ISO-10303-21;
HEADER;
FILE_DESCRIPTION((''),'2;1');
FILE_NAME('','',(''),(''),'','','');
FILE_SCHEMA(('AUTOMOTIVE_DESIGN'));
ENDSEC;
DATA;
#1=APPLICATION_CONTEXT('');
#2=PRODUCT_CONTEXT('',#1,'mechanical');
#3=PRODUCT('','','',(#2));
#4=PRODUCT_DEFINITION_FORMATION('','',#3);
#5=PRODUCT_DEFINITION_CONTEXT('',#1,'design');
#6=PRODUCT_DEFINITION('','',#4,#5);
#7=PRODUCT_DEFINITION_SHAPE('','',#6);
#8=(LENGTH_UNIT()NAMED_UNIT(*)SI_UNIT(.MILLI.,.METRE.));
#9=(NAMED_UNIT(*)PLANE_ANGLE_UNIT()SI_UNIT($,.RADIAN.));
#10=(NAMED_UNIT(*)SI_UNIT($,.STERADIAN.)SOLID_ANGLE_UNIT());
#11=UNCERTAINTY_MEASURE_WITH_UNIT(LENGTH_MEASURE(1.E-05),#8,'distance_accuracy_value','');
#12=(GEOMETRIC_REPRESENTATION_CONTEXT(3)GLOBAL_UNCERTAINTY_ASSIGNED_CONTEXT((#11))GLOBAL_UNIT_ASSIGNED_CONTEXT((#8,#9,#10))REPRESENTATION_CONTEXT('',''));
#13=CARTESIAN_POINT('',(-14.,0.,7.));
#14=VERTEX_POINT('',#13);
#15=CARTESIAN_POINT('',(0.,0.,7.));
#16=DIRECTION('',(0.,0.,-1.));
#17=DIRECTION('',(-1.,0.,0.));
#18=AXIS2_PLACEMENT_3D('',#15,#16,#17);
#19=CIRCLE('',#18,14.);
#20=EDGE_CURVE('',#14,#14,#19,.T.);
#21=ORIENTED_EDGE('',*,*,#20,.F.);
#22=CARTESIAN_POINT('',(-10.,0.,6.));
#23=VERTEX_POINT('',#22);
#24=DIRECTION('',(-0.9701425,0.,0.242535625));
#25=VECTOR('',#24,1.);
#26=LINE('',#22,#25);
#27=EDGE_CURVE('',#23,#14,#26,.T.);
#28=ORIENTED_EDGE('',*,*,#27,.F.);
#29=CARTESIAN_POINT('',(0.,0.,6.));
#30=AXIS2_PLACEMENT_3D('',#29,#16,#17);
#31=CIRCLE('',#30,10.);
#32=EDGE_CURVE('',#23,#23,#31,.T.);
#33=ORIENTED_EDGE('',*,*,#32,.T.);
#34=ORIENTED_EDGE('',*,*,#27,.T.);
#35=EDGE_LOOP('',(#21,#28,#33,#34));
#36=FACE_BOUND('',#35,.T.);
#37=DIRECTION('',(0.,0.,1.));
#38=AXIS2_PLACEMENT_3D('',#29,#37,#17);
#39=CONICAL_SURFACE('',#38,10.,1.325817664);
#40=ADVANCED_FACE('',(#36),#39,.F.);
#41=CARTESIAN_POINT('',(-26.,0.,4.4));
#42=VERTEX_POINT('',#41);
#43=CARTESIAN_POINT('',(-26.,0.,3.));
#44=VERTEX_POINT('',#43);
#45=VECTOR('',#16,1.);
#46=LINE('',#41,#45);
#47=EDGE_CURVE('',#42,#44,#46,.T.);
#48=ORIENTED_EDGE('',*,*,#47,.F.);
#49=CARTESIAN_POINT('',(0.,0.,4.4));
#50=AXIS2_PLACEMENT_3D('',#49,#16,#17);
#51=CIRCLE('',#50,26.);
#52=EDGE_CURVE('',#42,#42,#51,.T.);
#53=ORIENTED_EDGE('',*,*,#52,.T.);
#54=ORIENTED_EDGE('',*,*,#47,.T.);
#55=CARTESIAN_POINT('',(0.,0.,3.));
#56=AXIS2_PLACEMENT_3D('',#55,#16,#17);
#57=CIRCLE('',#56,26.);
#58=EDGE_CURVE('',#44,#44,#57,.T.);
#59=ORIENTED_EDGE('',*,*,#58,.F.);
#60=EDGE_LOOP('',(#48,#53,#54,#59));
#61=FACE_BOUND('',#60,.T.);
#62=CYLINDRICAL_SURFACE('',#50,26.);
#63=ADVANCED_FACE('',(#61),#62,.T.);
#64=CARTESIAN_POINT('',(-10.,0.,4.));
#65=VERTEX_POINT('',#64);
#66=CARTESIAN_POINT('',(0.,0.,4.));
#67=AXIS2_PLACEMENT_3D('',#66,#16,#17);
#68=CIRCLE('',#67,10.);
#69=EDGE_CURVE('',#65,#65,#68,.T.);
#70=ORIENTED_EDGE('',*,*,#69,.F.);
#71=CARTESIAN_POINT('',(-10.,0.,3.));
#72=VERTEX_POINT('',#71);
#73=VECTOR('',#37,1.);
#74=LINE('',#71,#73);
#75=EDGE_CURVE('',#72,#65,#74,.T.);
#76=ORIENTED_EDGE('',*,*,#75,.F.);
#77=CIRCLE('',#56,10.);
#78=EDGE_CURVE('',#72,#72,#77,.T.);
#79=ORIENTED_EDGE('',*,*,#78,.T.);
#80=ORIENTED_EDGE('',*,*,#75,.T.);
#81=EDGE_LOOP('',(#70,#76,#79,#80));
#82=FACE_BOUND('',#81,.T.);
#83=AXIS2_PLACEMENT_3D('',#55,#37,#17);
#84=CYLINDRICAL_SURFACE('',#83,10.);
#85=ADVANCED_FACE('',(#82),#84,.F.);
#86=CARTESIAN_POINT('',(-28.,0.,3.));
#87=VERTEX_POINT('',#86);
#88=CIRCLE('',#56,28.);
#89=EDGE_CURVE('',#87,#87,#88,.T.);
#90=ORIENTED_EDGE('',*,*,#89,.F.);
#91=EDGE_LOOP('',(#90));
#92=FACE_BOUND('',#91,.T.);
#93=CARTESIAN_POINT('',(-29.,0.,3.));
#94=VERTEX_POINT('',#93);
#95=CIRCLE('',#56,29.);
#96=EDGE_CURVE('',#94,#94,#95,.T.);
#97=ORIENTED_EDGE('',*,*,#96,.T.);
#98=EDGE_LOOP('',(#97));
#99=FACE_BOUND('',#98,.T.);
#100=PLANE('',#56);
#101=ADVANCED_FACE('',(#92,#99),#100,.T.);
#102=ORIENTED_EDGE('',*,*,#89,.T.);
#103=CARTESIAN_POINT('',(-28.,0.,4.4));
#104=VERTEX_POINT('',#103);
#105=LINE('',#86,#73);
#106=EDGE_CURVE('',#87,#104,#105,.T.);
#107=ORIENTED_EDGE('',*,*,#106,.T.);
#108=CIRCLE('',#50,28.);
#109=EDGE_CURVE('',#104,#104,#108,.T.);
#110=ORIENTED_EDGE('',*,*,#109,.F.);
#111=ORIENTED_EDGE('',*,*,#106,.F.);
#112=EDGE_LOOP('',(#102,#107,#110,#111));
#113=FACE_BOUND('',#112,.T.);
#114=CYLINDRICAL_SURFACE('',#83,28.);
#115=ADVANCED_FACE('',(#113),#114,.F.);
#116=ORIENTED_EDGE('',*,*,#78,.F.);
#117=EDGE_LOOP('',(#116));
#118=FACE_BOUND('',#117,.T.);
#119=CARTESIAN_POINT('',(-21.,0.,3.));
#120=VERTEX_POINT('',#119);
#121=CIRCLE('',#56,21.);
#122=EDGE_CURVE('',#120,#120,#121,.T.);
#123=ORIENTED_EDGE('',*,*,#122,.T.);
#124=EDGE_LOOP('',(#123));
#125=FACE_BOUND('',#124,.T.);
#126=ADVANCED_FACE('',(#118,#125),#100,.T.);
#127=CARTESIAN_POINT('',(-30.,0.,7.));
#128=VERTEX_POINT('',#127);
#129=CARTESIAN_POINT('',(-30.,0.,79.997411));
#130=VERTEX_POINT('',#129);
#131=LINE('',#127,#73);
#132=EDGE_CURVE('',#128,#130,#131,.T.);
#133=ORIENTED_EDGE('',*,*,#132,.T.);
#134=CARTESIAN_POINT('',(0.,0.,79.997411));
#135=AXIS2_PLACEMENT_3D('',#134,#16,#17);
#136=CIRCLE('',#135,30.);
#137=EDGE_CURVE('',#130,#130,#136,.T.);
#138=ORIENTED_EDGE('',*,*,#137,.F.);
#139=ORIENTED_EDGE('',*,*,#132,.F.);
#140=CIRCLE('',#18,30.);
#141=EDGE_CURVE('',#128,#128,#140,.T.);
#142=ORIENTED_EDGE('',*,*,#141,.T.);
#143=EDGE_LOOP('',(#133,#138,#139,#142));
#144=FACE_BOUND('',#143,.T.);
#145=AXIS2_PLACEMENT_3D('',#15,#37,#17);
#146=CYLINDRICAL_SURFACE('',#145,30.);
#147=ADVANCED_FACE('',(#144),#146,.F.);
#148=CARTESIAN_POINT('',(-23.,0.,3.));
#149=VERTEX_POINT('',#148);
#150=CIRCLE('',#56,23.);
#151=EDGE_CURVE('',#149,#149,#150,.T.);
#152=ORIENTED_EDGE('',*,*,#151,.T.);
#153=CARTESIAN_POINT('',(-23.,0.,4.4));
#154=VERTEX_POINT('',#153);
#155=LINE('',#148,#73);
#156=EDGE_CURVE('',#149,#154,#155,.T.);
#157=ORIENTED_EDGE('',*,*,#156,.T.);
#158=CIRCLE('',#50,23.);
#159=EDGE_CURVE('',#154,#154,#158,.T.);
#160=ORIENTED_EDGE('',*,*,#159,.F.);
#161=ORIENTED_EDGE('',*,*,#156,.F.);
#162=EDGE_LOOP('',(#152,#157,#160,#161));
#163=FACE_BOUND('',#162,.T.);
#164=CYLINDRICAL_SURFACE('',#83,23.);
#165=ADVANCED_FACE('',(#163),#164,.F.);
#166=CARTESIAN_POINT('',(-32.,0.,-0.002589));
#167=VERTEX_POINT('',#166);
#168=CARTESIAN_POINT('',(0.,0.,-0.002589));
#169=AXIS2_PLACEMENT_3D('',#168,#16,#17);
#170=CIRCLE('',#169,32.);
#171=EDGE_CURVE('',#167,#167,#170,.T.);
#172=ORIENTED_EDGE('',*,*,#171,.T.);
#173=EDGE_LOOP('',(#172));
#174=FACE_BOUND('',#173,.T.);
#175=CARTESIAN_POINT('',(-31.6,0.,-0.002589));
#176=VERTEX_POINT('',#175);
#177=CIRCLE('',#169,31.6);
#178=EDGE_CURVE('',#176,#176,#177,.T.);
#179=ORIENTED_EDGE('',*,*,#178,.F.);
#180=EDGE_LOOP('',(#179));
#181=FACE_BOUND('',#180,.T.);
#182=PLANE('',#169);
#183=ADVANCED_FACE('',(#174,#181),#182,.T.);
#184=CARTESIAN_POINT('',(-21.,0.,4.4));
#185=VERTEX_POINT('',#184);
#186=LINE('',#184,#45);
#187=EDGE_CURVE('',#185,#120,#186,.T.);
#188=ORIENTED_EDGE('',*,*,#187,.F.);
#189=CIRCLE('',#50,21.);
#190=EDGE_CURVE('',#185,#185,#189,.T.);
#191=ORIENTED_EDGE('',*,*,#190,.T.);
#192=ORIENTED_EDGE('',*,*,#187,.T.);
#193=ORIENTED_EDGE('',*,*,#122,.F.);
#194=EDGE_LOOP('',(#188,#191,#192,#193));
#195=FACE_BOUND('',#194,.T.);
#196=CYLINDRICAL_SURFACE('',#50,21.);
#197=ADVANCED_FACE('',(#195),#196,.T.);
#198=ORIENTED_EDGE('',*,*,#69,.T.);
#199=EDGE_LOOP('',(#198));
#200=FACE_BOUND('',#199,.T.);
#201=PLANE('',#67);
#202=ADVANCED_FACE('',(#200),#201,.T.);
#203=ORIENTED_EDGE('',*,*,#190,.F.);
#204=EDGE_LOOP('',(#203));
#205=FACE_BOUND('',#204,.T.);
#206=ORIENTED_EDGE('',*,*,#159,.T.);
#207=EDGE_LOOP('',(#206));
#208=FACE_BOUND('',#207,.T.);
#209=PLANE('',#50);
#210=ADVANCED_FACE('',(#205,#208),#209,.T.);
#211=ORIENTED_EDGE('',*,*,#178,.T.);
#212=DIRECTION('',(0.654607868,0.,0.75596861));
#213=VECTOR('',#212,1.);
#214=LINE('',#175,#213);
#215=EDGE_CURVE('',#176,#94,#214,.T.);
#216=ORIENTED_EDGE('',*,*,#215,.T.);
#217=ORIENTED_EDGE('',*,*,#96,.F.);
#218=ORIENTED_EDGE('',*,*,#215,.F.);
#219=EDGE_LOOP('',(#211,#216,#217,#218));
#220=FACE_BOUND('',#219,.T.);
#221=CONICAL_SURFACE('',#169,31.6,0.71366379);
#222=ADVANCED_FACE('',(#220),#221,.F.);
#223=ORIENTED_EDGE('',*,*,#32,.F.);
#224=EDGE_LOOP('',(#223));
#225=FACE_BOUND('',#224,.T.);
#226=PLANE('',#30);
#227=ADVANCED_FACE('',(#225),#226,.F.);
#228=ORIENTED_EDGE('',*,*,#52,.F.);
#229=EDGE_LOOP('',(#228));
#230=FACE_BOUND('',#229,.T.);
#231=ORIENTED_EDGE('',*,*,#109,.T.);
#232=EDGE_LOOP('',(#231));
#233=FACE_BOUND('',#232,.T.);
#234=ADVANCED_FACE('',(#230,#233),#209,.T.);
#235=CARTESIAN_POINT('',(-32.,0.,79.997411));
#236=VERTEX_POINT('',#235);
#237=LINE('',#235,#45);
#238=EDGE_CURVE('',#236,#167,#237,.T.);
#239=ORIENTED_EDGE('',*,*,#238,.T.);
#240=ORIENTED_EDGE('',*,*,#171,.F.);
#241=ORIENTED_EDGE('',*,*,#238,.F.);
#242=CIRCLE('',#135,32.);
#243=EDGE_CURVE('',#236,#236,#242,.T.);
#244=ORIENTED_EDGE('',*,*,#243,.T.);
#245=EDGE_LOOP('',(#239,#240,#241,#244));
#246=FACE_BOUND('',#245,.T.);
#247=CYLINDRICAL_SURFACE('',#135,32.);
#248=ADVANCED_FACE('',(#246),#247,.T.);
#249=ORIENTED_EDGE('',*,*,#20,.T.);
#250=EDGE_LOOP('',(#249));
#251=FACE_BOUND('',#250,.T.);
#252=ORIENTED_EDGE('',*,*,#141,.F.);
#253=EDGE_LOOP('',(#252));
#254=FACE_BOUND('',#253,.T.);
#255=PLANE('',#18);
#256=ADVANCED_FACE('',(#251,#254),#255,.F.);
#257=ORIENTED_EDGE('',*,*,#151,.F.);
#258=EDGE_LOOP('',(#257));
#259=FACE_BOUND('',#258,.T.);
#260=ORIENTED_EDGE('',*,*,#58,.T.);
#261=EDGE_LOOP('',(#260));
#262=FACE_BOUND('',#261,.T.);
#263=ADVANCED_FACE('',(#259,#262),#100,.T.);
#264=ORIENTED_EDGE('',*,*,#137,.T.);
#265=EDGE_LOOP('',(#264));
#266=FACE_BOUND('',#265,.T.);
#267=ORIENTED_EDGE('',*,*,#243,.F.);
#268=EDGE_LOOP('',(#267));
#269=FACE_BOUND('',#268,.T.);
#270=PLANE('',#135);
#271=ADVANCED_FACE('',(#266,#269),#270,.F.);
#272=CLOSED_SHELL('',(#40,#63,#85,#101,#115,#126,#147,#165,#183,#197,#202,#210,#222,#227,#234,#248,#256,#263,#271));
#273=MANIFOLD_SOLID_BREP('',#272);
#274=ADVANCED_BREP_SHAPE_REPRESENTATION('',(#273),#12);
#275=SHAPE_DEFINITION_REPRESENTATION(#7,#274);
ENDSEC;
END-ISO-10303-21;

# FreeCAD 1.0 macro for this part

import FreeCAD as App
import Part
import Sketcher

V = App.Vector
Q = App.Units.Quantity

doc = App.newDocument("Part")
body = doc.addObject("PartDesign::Body", "Body")

# Sketch on XZ plane
sketch1 = body.newObject("Sketcher::SketchObject", "Sketch")
sketch1.AttachmentSupport = (doc.getObject("XZ_Plane"), [""])
sketch1.MapMode = "FlatFace"
sketch1.addGeometry(Part.LineSegment(V(-10, 4, 0), V(0, 4, 0)), False)
sketch1.addGeometry(Part.LineSegment(V(0, 4, 0), V(0, 6, 0)), False)
sketch1.addGeometry(Part.LineSegment(V(0, 6, 0), V(-10, 6, 0)), False)
sketch1.addGeometry(Part.LineSegment(V(-10, 6, 0), V(-14, 7, 0)), False)
sketch1.addGeometry(Part.LineSegment(V(-14, 7, 0), V(-30, 7, 0)), False)
sketch1.addGeometry(Part.LineSegment(V(-30, 7, 0), V(-30, 80, 0)), False)
sketch1.addGeometry(Part.LineSegment(V(-30, 80, 0), V(-32, 80, 0)), False)
sketch1.addGeometry(Part.LineSegment(V(-32, 80, 0), V(-32, 0, 0)), False)
sketch1.addGeometry(Part.LineSegment(V(-32, 0, 0), V(-31.6, 0, 0)), False)
sketch1.addGeometry(Part.LineSegment(V(-31.6, 0, 0), V(-29, 3, 0)), False)
sketch1.addGeometry(Part.LineSegment(V(-29, 3, 0), V(-28, 3, 0)), False)
sketch1.addGeometry(Part.LineSegment(V(-28, 3, 0), V(-28, 4.4, 0)), False)
sketch1.addGeometry(Part.LineSegment(V(-28, 4.4, 0), V(-26, 4.4, 0)), False)
sketch1.addGeometry(Part.LineSegment(V(-26, 4.4, 0), V(-26, 3, 0)), False)
sketch1.addGeometry(Part.LineSegment(V(-26, 3, 0), V(-23, 3, 0)), False)
sketch1.addGeometry(Part.LineSegment(V(-23, 3, 0), V(-23, 4.4, 0)), False)
sketch1.addGeometry(Part.LineSegment(V(-23, 4.4, 0), V(-21, 4.4, 0)), False)
sketch1.addGeometry(Part.LineSegment(V(-21, 4.4, 0), V(-21, 3, 0)), False)
sketch1.addGeometry(Part.LineSegment(V(-21, 3, 0), V(-10, 3, 0)), False)
sketch1.addGeometry(Part.LineSegment(V(-10, 3, 0), V(-10, 4, 0)), False)
sketch1.addConstraint(Sketcher.Constraint("Coincident", 0, 2, 1, 1))
sketch1.addConstraint(Sketcher.Constraint("Coincident", 1, 2, 2, 1))
sketch1.addConstraint(Sketcher.Constraint("Coincident", 2, 2, 3, 1))
sketch1.addConstraint(Sketcher.Constraint("Coincident", 3, 2, 4, 1))
sketch1.addConstraint(Sketcher.Constraint("Coincident", 4, 2, 5, 1))
sketch1.addConstraint(Sketcher.Constraint("Coincident", 5, 2, 6, 1))
sketch1.addConstraint(Sketcher.Constraint("Coincident", 6, 2, 7, 1))
sketch1.addConstraint(Sketcher.Constraint("Coincident", 7, 2, 8, 1))
sketch1.addConstraint(Sketcher.Constraint("Coincident", 8, 2, 9, 1))
sketch1.addConstraint(Sketcher.Constraint("Coincident", 9, 2, 10, 1))
sketch1.addConstraint(Sketcher.Constraint("Coincident", 10, 2, 11, 1))
sketch1.addConstraint(Sketcher.Constraint("Coincident", 11, 2, 12, 1))
sketch1.addConstraint(Sketcher.Constraint("Coincident", 12, 2, 13, 1))
sketch1.addConstraint(Sketcher.Constraint("Coincident", 13, 2, 14, 1))
sketch1.addConstraint(Sketcher.Constraint("Coincident", 14, 2, 15, 1))
sketch1.addConstraint(Sketcher.Constraint("Coincident", 15, 2, 16, 1))
sketch1.addConstraint(Sketcher.Constraint("Coincident", 16, 2, 17, 1))
sketch1.addConstraint(Sketcher.Constraint("Coincident", 17, 2, 18, 1))
sketch1.addConstraint(Sketcher.Constraint("Coincident", 18, 2, 19, 1))
sketch1.addConstraint(Sketcher.Constraint("Coincident", 19, 2, 0, 1))
sketch1.addConstraint(Sketcher.Constraint("Horizontal", 0))
sketch1.addConstraint(Sketcher.Constraint("Vertical", 1))
sketch1.addConstraint(Sketcher.Constraint("Horizontal", 2))
sketch1.addConstraint(Sketcher.Constraint("Horizontal", 4))
sketch1.addConstraint(Sketcher.Constraint("Vertical", 5))
sketch1.addConstraint(Sketcher.Constraint("Horizontal", 6))
sketch1.addConstraint(Sketcher.Constraint("Vertical", 7))
sketch1.addConstraint(Sketcher.Constraint("Horizontal", 8))
sketch1.addConstraint(Sketcher.Constraint("Horizontal", 10))
sketch1.addConstraint(Sketcher.Constraint("Vertical", 11))
sketch1.addConstraint(Sketcher.Constraint("Horizontal", 12))
sketch1.addConstraint(Sketcher.Constraint("Vertical", 13))
sketch1.addConstraint(Sketcher.Constraint("Horizontal", 14))
sketch1.addConstraint(Sketcher.Constraint("Vertical", 15))
sketch1.addConstraint(Sketcher.Constraint("Horizontal", 16))
sketch1.addConstraint(Sketcher.Constraint("Vertical", 17))
sketch1.addConstraint(Sketcher.Constraint("Horizontal", 18))
sketch1.addConstraint(Sketcher.Constraint("Vertical", 19))
sketch1.addConstraint(Sketcher.Constraint("PointOnObject", 0, 2, -2))
sketch1.addConstraint(Sketcher.Constraint("Horizontal", 10, 2, 13, 2))
sketch1.addConstraint(Sketcher.Constraint("Horizontal", 12, 2, 15, 2))
sketch1.addConstraint(Sketcher.Constraint("Horizontal", 14, 2, 17, 2))
sketch1.addConstraint(Sketcher.Constraint("Vertical", 2, 2, 18, 2))
sketch1.addConstraint(Sketcher.Constraint("Equal", 6, 12))
sketch1.addConstraint(Sketcher.Constraint("Equal", 12, 16))
sketch1.addConstraint(Sketcher.Constraint("Equal", 16, 1))
sketch1.addConstraint(Sketcher.Constraint("Equal", 10, 19))
sketch1.addConstraint(Sketcher.Constraint("DistanceX", 0, 1, 0, 2, Q("10 mm")))
sketch1.addConstraint(Sketcher.Constraint("DistanceX", 4, 2, 4, 1, Q("16 mm")))
sketch1.addConstraint(Sketcher.Constraint("DistanceX", 6, 2, 6, 1, Q("2 mm")))
sketch1.addConstraint(Sketcher.Constraint("DistanceX", 10, 1, 10, 2, Q("1 mm")))
sketch1.addConstraint(Sketcher.Constraint("DistanceX", 14, 1, 14, 2, Q("3 mm")))
sketch1.addConstraint(Sketcher.Constraint("DistanceX", 18, 1, 18, 2, Q("11 mm")))
sketch1.addConstraint(Sketcher.Constraint("DistanceY", 7, 2, 7, 1, Q("80 mm")))
sketch1.addConstraint(Sketcher.Constraint("DistanceX", 8, 1, 8, 2, Q("0.4 mm")))
sketch1.addConstraint(Sketcher.Constraint("DistanceY", 11, 1, 11, 2, Q("1.4 mm")))
sketch1.addConstraint(Sketcher.Constraint("DistanceY", -1, 1, 0, 2, Q("4 mm")))
sketch1.addConstraint(Sketcher.Constraint("DistanceX", 3, 2, -1, 1, Q("14 mm")))
sketch1.addConstraint(Sketcher.Constraint("DistanceY", -1, 1, 3, 2, Q("7 mm")))
sketch1.addConstraint(Sketcher.Constraint("DistanceY", 5, 1, 5, 2, Q("72.997411 mm")))
revolution = body.newObject("PartDesign::Revolution", "Revolution")
revolution.Profile = sketch1
revolution.ReferenceAxis = (sketch1, ["V_Axis"])
revolution.Angle = 360

doc.recompute()
